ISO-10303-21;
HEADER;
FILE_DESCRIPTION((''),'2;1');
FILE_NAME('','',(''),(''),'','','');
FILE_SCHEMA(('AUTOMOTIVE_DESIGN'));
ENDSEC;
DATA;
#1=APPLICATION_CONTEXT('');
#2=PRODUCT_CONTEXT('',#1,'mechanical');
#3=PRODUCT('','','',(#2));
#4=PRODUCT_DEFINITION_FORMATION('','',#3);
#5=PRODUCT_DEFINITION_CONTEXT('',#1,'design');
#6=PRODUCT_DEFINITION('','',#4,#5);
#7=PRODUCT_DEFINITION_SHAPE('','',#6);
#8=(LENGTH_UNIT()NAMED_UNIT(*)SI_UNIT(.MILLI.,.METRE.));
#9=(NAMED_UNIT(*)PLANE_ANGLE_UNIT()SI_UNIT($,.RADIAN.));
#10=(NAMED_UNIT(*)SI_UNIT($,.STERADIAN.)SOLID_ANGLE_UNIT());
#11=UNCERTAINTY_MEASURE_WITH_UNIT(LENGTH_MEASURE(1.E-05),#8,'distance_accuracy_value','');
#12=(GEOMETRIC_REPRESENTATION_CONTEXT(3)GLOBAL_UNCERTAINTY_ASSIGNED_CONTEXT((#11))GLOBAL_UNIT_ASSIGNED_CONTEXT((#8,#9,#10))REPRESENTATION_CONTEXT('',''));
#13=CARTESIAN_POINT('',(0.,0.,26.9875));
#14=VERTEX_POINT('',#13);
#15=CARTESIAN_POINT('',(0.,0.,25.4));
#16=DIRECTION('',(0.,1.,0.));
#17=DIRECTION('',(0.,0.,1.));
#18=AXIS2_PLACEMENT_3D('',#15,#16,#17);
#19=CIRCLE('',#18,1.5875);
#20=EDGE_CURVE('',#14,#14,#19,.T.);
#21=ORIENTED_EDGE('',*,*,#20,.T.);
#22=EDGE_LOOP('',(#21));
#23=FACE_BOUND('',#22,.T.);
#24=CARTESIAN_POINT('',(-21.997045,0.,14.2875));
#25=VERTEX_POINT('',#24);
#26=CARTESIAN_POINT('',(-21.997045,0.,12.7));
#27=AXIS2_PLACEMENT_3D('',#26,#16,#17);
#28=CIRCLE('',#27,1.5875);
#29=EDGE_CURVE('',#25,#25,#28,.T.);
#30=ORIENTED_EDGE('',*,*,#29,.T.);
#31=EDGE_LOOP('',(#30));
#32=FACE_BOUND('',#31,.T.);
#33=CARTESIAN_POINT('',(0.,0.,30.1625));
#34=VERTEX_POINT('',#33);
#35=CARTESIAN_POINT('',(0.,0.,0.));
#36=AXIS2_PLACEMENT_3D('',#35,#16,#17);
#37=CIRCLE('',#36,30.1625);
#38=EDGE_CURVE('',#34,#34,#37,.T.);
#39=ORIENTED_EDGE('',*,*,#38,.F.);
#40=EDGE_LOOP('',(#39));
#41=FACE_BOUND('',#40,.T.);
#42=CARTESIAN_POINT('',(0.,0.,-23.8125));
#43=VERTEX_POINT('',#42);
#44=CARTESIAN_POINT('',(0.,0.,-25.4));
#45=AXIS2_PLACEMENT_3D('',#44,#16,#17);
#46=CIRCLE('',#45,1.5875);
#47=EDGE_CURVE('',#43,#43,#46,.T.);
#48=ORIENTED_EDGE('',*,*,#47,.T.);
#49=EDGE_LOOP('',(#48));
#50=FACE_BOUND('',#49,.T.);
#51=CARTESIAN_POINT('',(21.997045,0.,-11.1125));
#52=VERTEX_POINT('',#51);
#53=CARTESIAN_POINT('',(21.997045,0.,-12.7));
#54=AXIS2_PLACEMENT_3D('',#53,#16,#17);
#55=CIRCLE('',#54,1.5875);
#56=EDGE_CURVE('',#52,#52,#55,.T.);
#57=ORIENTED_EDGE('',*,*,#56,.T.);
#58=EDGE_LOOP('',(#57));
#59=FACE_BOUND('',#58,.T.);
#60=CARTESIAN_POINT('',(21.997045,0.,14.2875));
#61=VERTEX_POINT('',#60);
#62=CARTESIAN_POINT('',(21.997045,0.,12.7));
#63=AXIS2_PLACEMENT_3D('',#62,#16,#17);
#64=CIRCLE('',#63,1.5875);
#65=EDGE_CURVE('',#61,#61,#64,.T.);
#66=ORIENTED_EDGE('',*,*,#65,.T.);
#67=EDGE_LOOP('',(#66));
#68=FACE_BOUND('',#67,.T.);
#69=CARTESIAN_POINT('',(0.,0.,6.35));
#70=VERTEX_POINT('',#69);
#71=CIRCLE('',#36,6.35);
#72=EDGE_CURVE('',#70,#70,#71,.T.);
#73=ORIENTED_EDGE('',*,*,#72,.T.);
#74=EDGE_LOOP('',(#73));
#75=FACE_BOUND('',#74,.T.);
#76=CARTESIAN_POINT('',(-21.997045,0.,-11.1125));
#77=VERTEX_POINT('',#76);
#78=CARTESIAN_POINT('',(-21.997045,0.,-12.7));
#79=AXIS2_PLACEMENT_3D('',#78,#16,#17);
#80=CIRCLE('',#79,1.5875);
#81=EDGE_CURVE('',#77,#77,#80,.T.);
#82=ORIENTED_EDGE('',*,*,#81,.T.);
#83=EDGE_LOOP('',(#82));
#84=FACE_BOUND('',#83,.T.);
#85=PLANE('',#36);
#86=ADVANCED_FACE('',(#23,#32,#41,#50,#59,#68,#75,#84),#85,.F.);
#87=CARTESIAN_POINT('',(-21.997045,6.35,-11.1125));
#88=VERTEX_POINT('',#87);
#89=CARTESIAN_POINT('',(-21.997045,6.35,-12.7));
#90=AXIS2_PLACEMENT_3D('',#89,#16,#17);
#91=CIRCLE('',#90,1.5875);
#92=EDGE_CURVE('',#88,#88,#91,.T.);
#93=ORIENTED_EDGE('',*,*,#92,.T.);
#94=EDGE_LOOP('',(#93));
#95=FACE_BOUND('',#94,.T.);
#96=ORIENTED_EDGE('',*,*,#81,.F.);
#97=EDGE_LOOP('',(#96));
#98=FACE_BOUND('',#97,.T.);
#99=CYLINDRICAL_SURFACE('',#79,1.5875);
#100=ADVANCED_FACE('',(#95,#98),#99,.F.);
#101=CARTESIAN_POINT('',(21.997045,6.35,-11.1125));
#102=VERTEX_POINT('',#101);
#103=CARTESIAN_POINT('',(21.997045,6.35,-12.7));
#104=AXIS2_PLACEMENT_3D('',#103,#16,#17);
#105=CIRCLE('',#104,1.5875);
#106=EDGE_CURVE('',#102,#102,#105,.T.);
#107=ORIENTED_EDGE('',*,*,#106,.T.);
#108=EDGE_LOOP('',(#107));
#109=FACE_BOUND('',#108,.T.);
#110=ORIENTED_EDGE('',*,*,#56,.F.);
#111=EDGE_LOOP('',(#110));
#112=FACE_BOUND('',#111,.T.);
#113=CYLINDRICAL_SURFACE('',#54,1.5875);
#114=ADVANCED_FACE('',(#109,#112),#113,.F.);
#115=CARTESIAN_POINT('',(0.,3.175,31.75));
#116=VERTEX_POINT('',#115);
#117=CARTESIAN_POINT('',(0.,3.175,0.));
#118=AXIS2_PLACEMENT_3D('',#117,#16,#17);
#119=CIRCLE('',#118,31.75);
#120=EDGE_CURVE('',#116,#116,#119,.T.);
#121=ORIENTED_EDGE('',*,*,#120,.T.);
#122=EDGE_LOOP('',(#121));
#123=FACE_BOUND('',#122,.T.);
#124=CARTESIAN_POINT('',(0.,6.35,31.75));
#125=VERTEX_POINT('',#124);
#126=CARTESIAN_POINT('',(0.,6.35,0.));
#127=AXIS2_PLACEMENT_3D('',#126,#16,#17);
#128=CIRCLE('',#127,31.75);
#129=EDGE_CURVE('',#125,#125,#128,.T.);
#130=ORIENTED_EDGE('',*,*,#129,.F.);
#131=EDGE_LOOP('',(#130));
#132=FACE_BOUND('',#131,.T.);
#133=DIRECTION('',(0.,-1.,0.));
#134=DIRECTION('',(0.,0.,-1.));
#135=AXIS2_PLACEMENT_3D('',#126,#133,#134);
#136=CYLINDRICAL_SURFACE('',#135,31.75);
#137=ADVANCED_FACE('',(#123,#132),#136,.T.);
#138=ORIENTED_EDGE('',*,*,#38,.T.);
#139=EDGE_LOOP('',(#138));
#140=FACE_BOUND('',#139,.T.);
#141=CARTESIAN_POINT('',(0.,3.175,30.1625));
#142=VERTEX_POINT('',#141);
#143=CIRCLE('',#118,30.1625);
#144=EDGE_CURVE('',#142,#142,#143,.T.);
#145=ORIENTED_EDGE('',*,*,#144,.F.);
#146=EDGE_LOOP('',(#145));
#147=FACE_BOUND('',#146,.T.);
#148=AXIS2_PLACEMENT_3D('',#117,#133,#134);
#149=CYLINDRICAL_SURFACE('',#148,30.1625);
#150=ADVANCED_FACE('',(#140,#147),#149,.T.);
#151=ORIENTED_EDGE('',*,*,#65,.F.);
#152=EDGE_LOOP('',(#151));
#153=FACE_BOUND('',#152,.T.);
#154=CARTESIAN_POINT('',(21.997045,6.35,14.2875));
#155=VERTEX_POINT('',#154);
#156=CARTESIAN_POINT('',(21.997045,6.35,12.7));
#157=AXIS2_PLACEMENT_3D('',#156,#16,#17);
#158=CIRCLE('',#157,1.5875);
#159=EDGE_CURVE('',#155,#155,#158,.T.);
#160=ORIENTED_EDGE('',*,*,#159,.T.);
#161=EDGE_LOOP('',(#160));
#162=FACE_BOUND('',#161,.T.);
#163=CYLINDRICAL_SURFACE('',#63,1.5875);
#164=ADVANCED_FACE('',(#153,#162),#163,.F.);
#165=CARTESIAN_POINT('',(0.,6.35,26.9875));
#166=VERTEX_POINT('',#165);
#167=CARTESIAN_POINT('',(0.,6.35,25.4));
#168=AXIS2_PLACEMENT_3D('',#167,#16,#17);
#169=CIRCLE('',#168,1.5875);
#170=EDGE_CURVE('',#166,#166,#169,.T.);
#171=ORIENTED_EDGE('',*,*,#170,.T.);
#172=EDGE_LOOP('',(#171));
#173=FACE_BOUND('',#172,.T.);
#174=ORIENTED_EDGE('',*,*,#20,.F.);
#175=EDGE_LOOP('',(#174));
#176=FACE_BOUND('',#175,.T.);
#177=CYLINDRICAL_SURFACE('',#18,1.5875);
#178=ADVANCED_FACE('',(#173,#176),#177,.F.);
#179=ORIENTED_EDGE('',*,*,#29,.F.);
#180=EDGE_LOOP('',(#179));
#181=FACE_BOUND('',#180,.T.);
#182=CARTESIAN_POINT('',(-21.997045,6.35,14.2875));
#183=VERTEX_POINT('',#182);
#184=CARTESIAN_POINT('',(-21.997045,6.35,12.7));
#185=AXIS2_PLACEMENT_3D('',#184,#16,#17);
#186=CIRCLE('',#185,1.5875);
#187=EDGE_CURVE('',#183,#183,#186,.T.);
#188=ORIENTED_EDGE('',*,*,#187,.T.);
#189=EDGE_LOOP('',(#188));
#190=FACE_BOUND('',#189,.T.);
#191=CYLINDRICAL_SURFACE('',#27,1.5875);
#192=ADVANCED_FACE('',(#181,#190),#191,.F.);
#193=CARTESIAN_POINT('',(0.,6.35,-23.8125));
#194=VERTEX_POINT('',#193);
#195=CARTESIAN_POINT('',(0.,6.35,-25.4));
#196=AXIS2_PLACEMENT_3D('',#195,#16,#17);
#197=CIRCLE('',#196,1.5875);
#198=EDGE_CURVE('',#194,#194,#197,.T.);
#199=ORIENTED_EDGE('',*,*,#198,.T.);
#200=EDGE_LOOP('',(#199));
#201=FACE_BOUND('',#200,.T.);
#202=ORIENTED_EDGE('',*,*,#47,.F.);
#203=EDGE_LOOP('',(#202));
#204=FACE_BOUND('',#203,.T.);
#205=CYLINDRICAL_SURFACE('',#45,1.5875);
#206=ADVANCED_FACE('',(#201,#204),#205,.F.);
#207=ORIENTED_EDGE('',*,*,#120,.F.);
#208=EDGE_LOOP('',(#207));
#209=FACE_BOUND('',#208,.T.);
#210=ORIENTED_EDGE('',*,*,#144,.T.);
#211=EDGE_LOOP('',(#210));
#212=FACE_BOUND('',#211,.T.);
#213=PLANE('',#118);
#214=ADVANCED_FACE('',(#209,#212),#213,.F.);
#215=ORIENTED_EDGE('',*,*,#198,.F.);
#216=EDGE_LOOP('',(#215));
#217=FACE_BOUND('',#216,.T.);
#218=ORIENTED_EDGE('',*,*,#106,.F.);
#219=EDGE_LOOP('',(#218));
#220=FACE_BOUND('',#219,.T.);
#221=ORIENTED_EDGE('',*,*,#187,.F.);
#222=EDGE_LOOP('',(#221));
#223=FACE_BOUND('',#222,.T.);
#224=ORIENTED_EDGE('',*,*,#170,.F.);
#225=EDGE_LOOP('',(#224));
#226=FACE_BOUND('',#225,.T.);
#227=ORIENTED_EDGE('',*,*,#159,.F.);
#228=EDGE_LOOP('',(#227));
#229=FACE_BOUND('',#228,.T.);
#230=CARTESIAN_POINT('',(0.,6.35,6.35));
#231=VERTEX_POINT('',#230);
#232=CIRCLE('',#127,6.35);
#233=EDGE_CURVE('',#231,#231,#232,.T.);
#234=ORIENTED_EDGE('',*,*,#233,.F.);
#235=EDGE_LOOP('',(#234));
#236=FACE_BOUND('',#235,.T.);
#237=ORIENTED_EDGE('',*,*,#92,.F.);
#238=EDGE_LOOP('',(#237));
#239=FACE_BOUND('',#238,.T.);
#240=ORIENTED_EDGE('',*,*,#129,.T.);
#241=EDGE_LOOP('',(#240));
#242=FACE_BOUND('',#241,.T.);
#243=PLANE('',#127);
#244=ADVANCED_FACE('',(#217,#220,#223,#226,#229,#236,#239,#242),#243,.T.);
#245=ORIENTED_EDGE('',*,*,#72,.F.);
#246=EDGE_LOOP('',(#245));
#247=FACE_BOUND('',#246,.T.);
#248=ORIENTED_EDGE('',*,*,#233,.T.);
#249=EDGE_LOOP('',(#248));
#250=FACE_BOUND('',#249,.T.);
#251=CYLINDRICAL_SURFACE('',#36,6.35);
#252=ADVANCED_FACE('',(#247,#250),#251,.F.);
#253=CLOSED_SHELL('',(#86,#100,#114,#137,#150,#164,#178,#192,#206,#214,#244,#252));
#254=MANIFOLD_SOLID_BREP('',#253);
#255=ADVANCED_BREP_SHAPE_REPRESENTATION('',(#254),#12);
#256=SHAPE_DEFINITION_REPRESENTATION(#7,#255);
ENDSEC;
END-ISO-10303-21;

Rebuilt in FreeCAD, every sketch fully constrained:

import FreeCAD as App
import Part
import Sketcher

V = App.Vector
Q = App.Units.Quantity

doc = App.newDocument("Part")
body = doc.addObject("PartDesign::Body", "Body")

# Sketch on XZ plane
sketch1 = body.newObject("Sketcher::SketchObject", "Sketch")
sketch1.AttachmentSupport = (doc.getObject("XZ_Plane"), [""])
sketch1.MapMode = "FlatFace"
sketch1.addGeometry(Part.Circle(V(0, 0, 0), V(0, 0, 1), 30.1625), False)
sketch1.addConstraint([
    Sketcher.Constraint("Coincident", 0, 3, -1, 1),
    Sketcher.Constraint("Diameter", 0, Q("2.375 in")),
])
pad1 = body.newObject("PartDesign::Pad", "Pad")
pad1.Profile = sketch1
pad1.Length = Q("0.125 in")
pad1.Reversed = True

# Sketch on XZ plane
sketch2 = body.newObject("Sketcher::SketchObject", "Sketch001")
sketch2.AttachmentSupport = (doc.getObject("XZ_Plane"), [""])
sketch2.MapMode = "FlatFace"
sketch2.AttachmentOffset = App.Placement(V(0, 0, -0.125 * 25.4), App.Rotation())
sketch2.addGeometry(Part.Circle(V(0, 0, 0), V(0, 0, 1), 31.75), False)
sketch2.addConstraint([
    Sketcher.Constraint("Coincident", 0, 3, -1, 1),
    Sketcher.Constraint("Diameter", 0, Q("2.5 in")),
])
pad2 = body.newObject("PartDesign::Pad", "Pad001")
pad2.Profile = sketch2
pad2.Length = Q("0.125 in")
pad2.Reversed = True

# Sketch on XZ plane
sketch3 = body.newObject("Sketcher::SketchObject", "Sketch002")
sketch3.AttachmentSupport = (doc.getObject("XZ_Plane"), [""])
sketch3.MapMode = "FlatFace"
sketch3.AttachmentOffset = App.Placement(V(0, 0, -0.25 * 25.4), App.Rotation())
sketch3.addGeometry([
    Part.Circle(V(0, -25.4, 0), V(0, 0, 1), 1.5875),  # 0
    Part.Circle(V(21.997045, -12.7, 0), V(0, 0, 1), 1.5875),  # 1
    Part.Circle(V(21.997045, 12.7, 0), V(0, 0, 1), 1.5875),  # 2
    Part.Circle(V(0, 25.4, 0), V(0, 0, 1), 1.5875),  # 3
    Part.Circle(V(-21.997045, 12.7, 0), V(0, 0, 1), 1.5875),  # 4
    Part.Circle(V(-21.997045, -12.7, 0), V(0, 0, 1), 1.5875),  # 5
    Part.Circle(V(0, 0, 0), V(0, 0, 1), 6.35),  # 6
], False)
sketch3.addConstraint([
    Sketcher.Constraint("Coincident", 6, 3, -1, 1),
    Sketcher.Constraint("Equal", 0, 1),
    Sketcher.Constraint("Equal", 1, 2),
    Sketcher.Constraint("Equal", 2, 3),
    Sketcher.Constraint("Equal", 3, 4),
    Sketcher.Constraint("Equal", 4, 5),
    Sketcher.Constraint("Symmetric", 0, 3, 3, 3, -1, 1),
    Sketcher.Constraint("Symmetric", 1, 3, 4, 3, -1, 1),
    Sketcher.Constraint("Symmetric", 2, 3, 5, 3, -1, 1),
    Sketcher.Constraint("Symmetric", 2, 3, 4, 3, -2),
    Sketcher.Constraint("PointOnObject", 0, 3, -2),
    Sketcher.Constraint("Diameter", 6, Q("0.5 in")),
    Sketcher.Constraint("Diameter", 0, Q("0.125 in")),
    Sketcher.Constraint("DistanceY", 0, 3, -1, 1, Q("1 in")),
    Sketcher.Constraint("DistanceY", 1, 3, 2, 3, Q("1 in")),
    Sketcher.Constraint("DistanceX", 4, 3, 2, 3, Q("43.994091 mm")),
])
pocket1 = body.newObject("PartDesign::Pocket", "Pocket")
pocket1.Profile = sketch3
pocket1.Type = "ThroughAll"
pocket1.Reversed = True

doc.recompute()
